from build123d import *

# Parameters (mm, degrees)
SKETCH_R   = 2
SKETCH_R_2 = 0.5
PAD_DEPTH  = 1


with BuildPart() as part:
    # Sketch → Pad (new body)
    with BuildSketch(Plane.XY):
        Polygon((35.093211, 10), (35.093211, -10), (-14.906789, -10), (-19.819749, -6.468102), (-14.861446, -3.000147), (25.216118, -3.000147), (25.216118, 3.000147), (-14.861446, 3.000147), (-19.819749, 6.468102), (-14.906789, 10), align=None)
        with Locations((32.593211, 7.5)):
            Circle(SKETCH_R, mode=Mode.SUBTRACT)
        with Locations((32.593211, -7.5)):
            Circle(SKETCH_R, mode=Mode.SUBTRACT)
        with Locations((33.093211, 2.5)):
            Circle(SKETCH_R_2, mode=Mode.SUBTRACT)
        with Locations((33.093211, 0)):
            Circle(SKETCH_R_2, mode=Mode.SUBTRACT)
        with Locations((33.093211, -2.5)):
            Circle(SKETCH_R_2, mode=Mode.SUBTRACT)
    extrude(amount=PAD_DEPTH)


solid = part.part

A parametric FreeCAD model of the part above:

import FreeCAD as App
import Part
import Sketcher
from FreeCAD import Vector
Q = App.Units.Quantity


def add_polygon(sketch, points):
    """Adds a closed chain of lines whose ends are joined by coincident constraints."""
    first, n = sketch.GeometryCount, len(points)
    for a, b in zip(points, points[1:] + points[:1]):
        sketch.addGeometry(Part.LineSegment(App.Vector(*a, 0), App.Vector(*b, 0)), False)
    for i in range(n):
        sketch.addConstraint(Sketcher.Constraint("Coincident", first + i, 2, first + (i + 1) % n, 1))

doc = App.newDocument("Part")
body = doc.addObject("PartDesign::Body", "Body")

sketch1 = body.newObject("Sketcher::SketchObject", "Sketch")
sketch1.AttachmentSupport = (doc.getObject("XY_Plane"), [""])
sketch1.MapMode = "FlatFace"
add_polygon(sketch1, [(35.1, -10), (35.1, 10), (-14.9, 10), (-19.8, 6.5), (-14.9, 3), (25.2, 3), (25.2, -3), (-14.9, -3), (-19.8, -6.5), (-14.9, -10)])
sketch1.addGeometry(Part.Circle(Vector(33.1, -2.5, 0), Vector(0, 0, 1), 0.5), False)
sketch1.addGeometry(Part.Circle(Vector(32.6, -7.5, 0), Vector(0, 0, 1), 2), False)
sketch1.addGeometry(Part.Circle(Vector(33.1, 0, 0), Vector(0, 0, 1), 0.5), False)
sketch1.addGeometry(Part.Circle(Vector(33.1, 2.5, 0), Vector(0, 0, 1), 0.5), False)
sketch1.addGeometry(Part.Circle(Vector(32.6, 7.5, 0), Vector(0, 0, 1), 2), False)
sketch1.addConstraint([
    Sketcher.Constraint("Vertical", 0),
    Sketcher.Constraint("Horizontal", 1),
    Sketcher.Constraint("Horizontal", 4),
    Sketcher.Constraint("Vertical", 5),
    Sketcher.Constraint("Horizontal", 6),
    Sketcher.Constraint("Horizontal", 9),
    Sketcher.Constraint("Equal", 10, 12),
    Sketcher.Constraint("Equal", 12, 13),
    Sketcher.Constraint("Equal", 11, 14),
    Sketcher.Constraint("Symmetric", 10, 3, 13, 3, -1),
    Sketcher.Constraint("Symmetric", 11, 3, 14, 3, -1),
    Sketcher.Constraint("Symmetric", 3, 2, 6, 2, -1),
    Sketcher.Constraint("Symmetric", 2, 2, 7, 2, -1),
    Sketcher.Constraint("Symmetric", 1, 2, 8, 2, -1),
    Sketcher.Constraint("PointOnObject", 12, 3, -1),
    Sketcher.Constraint("Vertical", 10, 3, 12, 3),
    Sketcher.Constraint("Equal", 2, 3),
    Sketcher.Constraint("Diameter", 10, Q("1 mm")),
    Sketcher.Constraint("Diameter", 11, Q("4 mm")),
    Sketcher.Constraint("DistanceX", 1, 2, 1, 1, Q("50 mm")),
    Sketcher.Constraint("DistanceY", 0, 1, 0, 2, Q("20 mm")),
    Sketcher.Constraint("DistanceY", 11, 3, 10, 3, Q("5 mm")),
    Sketcher.Constraint("DistanceY", 10, 3, 13, 3, Q("5 mm")),
    Sketcher.Constraint("DistanceX", 13, 3, 0, 2, Q("2 mm")),
    Sketcher.Constraint("DistanceX", 11, 3, 10, 3, Q("0.5 mm")),
    Sketcher.Constraint("DistanceY", 2, 2, 1, 2, Q("3.531898 mm")),
    Sketcher.Constraint("DistanceX", 4, 1, 4, 2, Q("40.077564 mm")),
    Sketcher.Constraint("DistanceY", 5, 2, 5, 1, Q("6.000294 mm")),
    Sketcher.Constraint("DistanceX", -1, 1, 10, 3, Q("33.093211 mm")),
    Sketcher.Constraint("DistanceX", 2, 2, -1, 1, Q("19.819749 mm")),
])
pad1 = body.newObject("PartDesign::Pad", "Pad")
pad1.Profile = sketch1
pad1.Length = 1

doc.recompute()
